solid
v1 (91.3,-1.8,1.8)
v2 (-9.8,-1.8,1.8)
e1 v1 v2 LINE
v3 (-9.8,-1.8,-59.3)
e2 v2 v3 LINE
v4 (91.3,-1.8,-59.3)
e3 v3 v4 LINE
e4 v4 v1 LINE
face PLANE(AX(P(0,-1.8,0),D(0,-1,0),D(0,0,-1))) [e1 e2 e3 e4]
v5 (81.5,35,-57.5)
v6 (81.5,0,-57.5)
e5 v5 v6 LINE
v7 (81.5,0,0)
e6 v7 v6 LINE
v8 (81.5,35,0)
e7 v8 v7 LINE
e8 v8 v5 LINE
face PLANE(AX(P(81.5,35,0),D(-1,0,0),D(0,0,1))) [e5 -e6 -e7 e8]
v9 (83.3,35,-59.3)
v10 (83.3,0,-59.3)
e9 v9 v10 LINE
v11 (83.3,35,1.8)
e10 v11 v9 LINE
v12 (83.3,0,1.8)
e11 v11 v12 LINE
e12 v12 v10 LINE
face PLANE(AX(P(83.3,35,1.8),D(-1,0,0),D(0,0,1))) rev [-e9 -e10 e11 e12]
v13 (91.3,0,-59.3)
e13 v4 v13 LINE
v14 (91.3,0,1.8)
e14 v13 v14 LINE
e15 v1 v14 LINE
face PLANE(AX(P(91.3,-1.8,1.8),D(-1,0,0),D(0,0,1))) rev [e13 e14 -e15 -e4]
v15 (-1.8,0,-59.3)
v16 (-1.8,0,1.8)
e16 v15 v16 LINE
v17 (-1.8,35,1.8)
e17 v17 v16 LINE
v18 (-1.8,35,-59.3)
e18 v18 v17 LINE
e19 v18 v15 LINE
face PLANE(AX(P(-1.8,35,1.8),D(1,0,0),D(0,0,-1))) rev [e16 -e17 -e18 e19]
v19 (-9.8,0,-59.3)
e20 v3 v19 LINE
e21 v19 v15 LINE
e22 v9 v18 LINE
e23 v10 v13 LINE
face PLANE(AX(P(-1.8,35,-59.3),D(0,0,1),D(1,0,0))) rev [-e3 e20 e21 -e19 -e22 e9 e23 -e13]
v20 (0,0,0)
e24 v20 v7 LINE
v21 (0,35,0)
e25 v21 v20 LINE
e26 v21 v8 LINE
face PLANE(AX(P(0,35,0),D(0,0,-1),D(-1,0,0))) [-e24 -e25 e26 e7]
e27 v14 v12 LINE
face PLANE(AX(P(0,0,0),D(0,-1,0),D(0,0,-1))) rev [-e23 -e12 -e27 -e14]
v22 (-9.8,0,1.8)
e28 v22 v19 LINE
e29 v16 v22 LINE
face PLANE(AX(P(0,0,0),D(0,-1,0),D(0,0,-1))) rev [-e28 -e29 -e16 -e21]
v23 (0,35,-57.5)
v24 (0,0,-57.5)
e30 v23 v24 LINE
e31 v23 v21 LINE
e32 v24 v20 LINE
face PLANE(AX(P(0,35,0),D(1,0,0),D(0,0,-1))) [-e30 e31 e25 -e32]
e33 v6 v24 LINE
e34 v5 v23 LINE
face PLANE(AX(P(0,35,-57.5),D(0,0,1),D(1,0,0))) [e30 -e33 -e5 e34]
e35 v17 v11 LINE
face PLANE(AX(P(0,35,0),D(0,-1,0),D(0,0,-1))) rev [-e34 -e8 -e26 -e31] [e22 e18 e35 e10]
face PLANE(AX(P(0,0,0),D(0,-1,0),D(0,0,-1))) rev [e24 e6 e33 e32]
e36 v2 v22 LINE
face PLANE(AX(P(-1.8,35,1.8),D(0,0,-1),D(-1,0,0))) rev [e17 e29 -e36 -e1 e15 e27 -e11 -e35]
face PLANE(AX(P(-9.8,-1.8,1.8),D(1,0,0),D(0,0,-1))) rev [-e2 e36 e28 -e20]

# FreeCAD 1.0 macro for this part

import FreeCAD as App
import Part
import Sketcher
Q = App.Units.Quantity


def add_polygon(sketch, points):
    """Adds a closed chain of lines whose ends are joined by coincident constraints."""
    first, n = sketch.GeometryCount, len(points)
    for a, b in zip(points, points[1:] + points[:1]):
        sketch.addGeometry(Part.LineSegment(App.Vector(*a, 0), App.Vector(*b, 0)), False)
    for i in range(n):
        sketch.addConstraint(Sketcher.Constraint("Coincident", first + i, 2, first + (i + 1) % n, 1))

doc = App.newDocument("Part")
body = doc.addObject("PartDesign::Body", "Body")

# Sketch on XZ plane
sketch1 = body.newObject("Sketcher::SketchObject", "Sketch")
sketch1.AttachmentSupport = (doc.getObject("XZ_Plane"), [""])
sketch1.MapMode = "FlatFace"
add_polygon(sketch1, [(-2, -59), (-2, 2), (83, 2), (83, -59)])  # lines 0-3
add_polygon(sketch1, [(82, 0), (0, 0), (0, -58), (82, -58)])  # lines 4-7
sketch1.addConstraint([
    Sketcher.Constraint("Vertical", 0),
    Sketcher.Constraint("Horizontal", 1),
    Sketcher.Constraint("Vertical", 2),
    Sketcher.Constraint("Horizontal", 3),
    Sketcher.Constraint("Horizontal", 4),
    Sketcher.Constraint("Vertical", 5),
    Sketcher.Constraint("Horizontal", 6),
    Sketcher.Constraint("Vertical", 7),
    Sketcher.Constraint("Coincident", 4, 2, -1, 1),
    Sketcher.Constraint("DistanceX", 1, 1, 1, 2, Q("85.1 mm")),
    Sketcher.Constraint("DistanceX", 4, 2, 4, 1, Q("81.5 mm")),
    Sketcher.Constraint("DistanceY", 0, 1, 0, 2, Q("61.1 mm")),
    Sketcher.Constraint("DistanceY", 5, 2, 5, 1, Q("57.5 mm")),
    Sketcher.Constraint("DistanceX", 0, 2, -1, 1, Q("1.8 mm")),
    Sketcher.Constraint("DistanceY", -1, 1, 0, 2, Q("1.8 mm")),
])
pad1 = body.newObject("PartDesign::Pad", "Pad")
pad1.Profile = sketch1
pad1.Length = 35
pad1.Reversed = True

# Sketch on XZ plane
sketch2 = body.newObject("Sketcher::SketchObject", "Sketch001")
sketch2.AttachmentSupport = (doc.getObject("XZ_Plane"), [""])
sketch2.MapMode = "FlatFace"
add_polygon(sketch2, [(-10, 2), (-10, -59), (91, -59), (91, 2)])  # lines 0-3
sketch2.addConstraint([
    Sketcher.Constraint("Vertical", 0),
    Sketcher.Constraint("Horizontal", 1),
    Sketcher.Constraint("Vertical", 2),
    Sketcher.Constraint("Horizontal", 3),
    Sketcher.Constraint("DistanceX", 1, 1, 1, 2, Q("101.1 mm")),
    Sketcher.Constraint("DistanceY", 0, 2, 0, 1, Q("61.1 mm")),
    Sketcher.Constraint("DistanceX", 0, 2, -1, 1, Q("9.8 mm")),
    Sketcher.Constraint("DistanceY", 0, 2, -1, 1, Q("59.3 mm")),
])
pad2 = body.newObject("PartDesign::Pad", "Pad001")
pad2.Profile = sketch2
pad2.Length = 1.8

doc.recompute()
